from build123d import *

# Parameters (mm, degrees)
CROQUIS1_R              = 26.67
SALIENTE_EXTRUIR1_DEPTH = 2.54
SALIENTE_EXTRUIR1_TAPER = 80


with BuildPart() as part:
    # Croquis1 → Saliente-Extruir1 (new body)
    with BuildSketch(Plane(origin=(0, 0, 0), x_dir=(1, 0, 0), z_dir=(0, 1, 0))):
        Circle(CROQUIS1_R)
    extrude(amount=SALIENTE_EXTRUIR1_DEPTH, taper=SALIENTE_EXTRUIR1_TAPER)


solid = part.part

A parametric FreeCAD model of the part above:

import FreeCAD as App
import Part
import Sketcher
from FreeCAD import Vector
Q = App.Units.Quantity

doc = App.newDocument("Part")
params = doc.addObject("Spreadsheet::Sheet", "Params")
for row, (alias, value) in enumerate([
    ("sketch1_diameter", "2.1 in"),
    ("pad1_length", "0.1 in"),
    ("pad1_taper", "-80 deg"),
], start=1):
    params.set(f"A{row}", alias)
    params.set(f"B{row}", "=" + value)
    params.setAlias(f"B{row}", alias)

body = doc.addObject("PartDesign::Body", "Body")

sketch1 = doc.addObject("Sketcher::SketchObject", "Sketch")
body.addObject(sketch1)
sketch1.AttachmentSupport = (doc.XZ_Plane, [""])
sketch1.MapMode = "FlatFace"
sketch1.addGeometry(Part.Circle(Vector(0, 0, 0), Vector(0, 0, 1), 27), False)
sketch1.addConstraint([
    Sketcher.Constraint("Coincident", 0, 3, -1, 1),
    Sketcher.Constraint("Diameter", 0, Q("2.1 in")),
])
sketch1.setExpression("Constraints[1]", "Params.sketch1_diameter")
pad1 = doc.addObject("PartDesign::Pad", "Pad")
body.addObject(pad1)
pad1.Profile = sketch1
pad1.setExpression("Length", "Params.pad1_length")
pad1.Reversed = True
pad1.setExpression("TaperAngle", "Params.pad1_taper")

doc.recompute()
